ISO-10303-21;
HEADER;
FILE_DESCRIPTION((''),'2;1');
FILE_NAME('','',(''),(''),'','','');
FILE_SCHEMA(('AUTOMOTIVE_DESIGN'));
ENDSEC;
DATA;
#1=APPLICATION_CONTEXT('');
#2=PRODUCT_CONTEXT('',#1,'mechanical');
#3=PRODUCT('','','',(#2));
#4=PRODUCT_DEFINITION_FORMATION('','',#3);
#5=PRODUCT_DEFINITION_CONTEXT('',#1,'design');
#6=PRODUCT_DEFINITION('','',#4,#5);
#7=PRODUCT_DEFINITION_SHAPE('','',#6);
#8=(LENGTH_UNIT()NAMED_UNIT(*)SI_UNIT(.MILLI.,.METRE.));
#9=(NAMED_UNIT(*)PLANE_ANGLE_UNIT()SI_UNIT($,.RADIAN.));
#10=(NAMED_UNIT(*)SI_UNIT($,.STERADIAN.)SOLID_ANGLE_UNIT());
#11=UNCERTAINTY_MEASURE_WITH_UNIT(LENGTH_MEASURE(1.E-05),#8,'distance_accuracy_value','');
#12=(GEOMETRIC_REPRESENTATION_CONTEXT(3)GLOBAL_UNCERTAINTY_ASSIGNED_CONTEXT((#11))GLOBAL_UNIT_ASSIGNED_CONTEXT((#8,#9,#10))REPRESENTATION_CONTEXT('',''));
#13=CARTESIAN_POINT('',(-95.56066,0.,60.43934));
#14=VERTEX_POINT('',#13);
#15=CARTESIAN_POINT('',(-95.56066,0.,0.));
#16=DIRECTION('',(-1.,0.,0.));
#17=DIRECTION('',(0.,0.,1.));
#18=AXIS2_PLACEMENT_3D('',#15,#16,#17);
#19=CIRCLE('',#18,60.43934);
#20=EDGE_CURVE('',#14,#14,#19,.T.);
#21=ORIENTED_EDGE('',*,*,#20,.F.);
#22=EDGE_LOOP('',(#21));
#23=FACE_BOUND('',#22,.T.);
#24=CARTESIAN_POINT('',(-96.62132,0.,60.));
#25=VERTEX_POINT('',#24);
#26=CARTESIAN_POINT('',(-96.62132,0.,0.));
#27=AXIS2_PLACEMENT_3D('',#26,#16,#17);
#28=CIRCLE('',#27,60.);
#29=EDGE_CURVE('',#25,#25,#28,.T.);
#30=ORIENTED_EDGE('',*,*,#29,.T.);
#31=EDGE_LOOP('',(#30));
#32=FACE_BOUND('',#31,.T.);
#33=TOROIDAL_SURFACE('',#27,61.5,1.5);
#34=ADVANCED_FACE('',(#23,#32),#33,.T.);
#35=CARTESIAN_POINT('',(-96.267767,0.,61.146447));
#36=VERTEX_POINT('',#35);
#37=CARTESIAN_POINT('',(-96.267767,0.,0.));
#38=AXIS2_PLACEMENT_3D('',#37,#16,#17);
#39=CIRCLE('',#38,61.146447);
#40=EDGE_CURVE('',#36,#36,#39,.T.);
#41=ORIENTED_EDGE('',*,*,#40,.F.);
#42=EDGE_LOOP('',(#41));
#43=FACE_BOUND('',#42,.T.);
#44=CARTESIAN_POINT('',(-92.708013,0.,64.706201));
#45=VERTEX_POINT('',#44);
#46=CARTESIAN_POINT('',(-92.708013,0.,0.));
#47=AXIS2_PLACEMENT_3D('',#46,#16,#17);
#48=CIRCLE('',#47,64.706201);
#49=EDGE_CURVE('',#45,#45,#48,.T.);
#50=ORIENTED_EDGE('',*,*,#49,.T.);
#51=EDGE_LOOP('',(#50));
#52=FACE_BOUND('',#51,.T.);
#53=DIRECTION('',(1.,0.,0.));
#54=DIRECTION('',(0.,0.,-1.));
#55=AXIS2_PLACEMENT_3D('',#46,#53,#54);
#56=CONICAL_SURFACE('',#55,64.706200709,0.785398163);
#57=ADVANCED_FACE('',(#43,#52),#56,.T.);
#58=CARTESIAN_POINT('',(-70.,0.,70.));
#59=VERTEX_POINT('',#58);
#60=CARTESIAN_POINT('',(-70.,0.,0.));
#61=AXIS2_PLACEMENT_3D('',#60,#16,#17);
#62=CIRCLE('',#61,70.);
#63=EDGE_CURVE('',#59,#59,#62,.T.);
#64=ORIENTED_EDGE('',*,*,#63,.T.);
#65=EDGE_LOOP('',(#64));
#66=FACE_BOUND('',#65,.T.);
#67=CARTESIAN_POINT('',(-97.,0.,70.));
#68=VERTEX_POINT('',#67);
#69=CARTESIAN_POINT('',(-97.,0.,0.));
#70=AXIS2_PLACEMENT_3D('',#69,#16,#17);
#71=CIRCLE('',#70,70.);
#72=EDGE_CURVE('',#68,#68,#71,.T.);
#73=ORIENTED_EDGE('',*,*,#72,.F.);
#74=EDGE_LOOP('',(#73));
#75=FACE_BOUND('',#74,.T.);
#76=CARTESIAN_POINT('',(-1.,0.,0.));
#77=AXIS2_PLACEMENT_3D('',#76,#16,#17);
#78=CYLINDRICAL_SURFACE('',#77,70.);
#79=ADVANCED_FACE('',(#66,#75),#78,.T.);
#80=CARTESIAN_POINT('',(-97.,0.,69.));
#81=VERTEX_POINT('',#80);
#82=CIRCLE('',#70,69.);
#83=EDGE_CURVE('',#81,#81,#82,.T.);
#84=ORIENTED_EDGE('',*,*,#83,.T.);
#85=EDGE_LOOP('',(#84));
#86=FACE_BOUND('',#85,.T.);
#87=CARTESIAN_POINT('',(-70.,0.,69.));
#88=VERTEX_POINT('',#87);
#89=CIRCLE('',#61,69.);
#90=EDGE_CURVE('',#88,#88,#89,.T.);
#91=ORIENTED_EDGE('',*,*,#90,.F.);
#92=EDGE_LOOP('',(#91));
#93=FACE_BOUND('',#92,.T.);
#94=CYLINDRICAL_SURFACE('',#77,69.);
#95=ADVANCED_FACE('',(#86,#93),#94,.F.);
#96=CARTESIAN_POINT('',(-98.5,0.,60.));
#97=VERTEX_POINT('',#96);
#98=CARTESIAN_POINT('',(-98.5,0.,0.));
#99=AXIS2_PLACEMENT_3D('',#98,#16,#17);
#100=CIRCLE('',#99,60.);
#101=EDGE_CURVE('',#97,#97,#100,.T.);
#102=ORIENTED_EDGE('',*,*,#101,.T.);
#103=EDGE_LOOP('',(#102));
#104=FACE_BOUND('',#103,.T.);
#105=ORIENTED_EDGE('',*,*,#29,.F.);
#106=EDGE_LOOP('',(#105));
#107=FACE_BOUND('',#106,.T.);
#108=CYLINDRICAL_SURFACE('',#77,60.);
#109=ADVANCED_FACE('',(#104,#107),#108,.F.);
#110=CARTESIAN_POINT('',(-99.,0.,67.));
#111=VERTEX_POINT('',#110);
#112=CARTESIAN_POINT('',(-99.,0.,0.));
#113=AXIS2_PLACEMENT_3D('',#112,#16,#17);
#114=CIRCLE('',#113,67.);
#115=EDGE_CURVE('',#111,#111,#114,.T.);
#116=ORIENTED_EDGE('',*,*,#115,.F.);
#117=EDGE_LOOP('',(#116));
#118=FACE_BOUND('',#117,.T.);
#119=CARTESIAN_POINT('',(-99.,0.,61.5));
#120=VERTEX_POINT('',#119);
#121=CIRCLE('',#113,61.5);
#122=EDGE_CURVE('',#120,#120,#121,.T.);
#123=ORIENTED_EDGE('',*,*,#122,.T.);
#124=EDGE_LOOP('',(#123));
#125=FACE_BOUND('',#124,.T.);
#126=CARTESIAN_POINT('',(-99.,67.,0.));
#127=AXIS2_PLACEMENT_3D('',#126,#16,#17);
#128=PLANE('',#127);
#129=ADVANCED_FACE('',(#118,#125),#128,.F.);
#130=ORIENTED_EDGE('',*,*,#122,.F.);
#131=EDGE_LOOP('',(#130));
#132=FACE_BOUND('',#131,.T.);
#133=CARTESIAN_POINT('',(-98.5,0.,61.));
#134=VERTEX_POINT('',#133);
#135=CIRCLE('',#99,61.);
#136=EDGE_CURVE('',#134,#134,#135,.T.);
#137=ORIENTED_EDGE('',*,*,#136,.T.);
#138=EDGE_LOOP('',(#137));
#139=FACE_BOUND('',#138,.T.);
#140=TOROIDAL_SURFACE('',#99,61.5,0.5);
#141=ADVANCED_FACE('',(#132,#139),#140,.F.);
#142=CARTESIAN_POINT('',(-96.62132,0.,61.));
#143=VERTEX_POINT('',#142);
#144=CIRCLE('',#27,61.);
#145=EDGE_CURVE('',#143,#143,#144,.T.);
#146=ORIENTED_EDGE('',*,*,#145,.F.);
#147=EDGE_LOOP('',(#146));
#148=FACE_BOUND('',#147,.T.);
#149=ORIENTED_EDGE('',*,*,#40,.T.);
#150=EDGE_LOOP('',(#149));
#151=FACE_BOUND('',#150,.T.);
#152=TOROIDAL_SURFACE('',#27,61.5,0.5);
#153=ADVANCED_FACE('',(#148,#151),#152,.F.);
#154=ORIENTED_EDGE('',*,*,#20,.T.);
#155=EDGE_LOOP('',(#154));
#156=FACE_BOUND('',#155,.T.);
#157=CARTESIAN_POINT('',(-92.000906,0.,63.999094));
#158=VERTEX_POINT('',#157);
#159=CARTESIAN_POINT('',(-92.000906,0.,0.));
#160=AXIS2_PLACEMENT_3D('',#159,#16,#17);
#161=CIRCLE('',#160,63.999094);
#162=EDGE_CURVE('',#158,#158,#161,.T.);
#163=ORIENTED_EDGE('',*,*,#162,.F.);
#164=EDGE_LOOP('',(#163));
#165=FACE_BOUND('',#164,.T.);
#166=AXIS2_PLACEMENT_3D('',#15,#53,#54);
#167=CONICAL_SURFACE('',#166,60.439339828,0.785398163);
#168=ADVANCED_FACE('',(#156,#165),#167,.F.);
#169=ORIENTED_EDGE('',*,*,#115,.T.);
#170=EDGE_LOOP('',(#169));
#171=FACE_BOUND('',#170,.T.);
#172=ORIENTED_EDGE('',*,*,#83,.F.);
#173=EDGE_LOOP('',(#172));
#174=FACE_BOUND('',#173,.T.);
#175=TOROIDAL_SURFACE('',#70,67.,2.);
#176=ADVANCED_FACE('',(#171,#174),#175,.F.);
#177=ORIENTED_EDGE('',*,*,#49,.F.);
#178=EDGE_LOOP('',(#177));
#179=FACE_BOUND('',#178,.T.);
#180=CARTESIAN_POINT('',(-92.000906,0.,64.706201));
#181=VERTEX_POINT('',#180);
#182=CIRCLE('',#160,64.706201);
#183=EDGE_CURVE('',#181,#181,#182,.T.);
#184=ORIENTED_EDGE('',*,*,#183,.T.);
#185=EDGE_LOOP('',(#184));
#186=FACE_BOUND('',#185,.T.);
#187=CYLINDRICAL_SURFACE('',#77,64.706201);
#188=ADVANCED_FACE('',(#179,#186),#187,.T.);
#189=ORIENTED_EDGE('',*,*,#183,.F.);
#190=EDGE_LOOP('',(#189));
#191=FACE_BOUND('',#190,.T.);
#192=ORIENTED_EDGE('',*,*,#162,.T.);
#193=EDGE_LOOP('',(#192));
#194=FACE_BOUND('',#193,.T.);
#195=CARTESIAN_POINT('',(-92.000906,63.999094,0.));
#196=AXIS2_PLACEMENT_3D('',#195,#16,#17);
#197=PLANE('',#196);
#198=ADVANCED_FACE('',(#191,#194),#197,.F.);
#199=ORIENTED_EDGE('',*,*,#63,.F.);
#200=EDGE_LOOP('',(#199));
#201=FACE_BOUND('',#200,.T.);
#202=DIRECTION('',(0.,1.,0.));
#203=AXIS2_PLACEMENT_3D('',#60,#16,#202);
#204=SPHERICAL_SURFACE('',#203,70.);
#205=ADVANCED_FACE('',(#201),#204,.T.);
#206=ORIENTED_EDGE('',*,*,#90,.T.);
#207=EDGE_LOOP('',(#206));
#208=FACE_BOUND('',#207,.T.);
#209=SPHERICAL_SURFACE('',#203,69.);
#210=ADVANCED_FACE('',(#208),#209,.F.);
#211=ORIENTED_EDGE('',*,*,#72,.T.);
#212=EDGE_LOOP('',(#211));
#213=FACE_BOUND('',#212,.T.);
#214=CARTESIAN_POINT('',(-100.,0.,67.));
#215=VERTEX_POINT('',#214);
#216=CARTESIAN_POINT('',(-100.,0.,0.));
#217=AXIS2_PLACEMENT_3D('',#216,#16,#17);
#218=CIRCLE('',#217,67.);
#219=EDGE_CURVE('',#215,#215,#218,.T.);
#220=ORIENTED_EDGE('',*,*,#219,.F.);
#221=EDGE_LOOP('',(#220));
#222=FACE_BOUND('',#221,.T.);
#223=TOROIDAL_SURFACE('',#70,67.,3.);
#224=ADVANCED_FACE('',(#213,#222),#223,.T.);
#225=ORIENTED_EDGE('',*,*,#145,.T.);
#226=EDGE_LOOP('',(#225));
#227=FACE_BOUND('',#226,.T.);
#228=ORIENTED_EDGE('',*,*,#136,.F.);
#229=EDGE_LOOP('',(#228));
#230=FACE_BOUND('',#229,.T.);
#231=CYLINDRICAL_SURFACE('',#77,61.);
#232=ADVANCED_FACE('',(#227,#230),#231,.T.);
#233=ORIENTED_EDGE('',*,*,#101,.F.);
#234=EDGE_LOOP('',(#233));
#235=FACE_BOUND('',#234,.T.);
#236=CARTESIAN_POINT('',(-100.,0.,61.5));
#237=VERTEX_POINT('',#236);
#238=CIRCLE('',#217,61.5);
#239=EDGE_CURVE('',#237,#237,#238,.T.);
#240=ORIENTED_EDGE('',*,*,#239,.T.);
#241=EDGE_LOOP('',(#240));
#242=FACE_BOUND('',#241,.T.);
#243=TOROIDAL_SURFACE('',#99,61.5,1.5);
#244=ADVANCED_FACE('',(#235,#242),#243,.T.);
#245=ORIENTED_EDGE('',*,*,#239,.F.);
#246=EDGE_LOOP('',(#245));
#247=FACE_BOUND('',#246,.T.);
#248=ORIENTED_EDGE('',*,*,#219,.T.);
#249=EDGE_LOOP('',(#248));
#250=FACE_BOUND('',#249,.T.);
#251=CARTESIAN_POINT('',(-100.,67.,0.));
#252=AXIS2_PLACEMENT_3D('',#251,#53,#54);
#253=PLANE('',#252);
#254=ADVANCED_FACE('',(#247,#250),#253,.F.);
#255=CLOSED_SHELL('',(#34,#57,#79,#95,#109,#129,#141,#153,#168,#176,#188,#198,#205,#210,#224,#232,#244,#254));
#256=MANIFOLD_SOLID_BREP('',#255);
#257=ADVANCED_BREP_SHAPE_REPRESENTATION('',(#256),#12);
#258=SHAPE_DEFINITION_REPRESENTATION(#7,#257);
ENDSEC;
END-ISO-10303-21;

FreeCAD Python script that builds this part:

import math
import FreeCAD as App
import Part
import Sketcher

V = App.Vector
Q = App.Units.Quantity

doc = App.newDocument("Part")
body = doc.addObject("PartDesign::Body", "Body")

# Sketch on XY plane
sketch1 = body.newObject("Sketcher::SketchObject", "Sketch")
sketch1.AttachmentSupport = (doc.getObject("XY_Plane"), [""])
sketch1.MapMode = "FlatFace"
sketch1.addGeometry([
    Part.LineSegment(V(-70, 70, 0), V(-97, 70, 0)),  # 0
    Part.ArcOfCircle(Part.Circle(V(-97, 67, 0), V(0, 0, 1), 3), math.radians(90), math.radians(180)),  # 1
    Part.LineSegment(V(-100, 67, 0), V(-100, 61.5, 0)),  # 2
    Part.ArcOfCircle(Part.Circle(V(-98.5, 61.5, 0), V(0, 0, 1), 1.5), math.radians(180), math.radians(270)),  # 3
    Part.LineSegment(V(-98.5, 60, 0), V(-96.62, 60, 0)),  # 4
    Part.ArcOfCircle(Part.Circle(V(-96.62, 61.5, 0), V(0, 0, 1), 1.5), math.radians(-90), math.radians(-45)),  # 5
    Part.LineSegment(V(-95.56, 60.44, 0), V(-92, 64, 0)),  # 6
    Part.LineSegment(V(-92, 64, 0), V(-92, 64.71, 0)),  # 7
    Part.LineSegment(V(-92, 64.71, 0), V(-92.71, 64.71, 0)),  # 8
    Part.LineSegment(V(-92.71, 64.71, 0), V(-96.27, 61.15, 0)),  # 9
    Part.ArcOfCircle(Part.Circle(V(-96.62, 61.5, 0), V(0, 0, 1), 0.5), math.radians(-90), math.radians(-45)),  # 10
    Part.LineSegment(V(-96.62, 61, 0), V(-98.5, 61, 0)),  # 11
    Part.ArcOfCircle(Part.Circle(V(-98.5, 61.5, 0), V(0, 0, 1), 0.5), math.radians(180), math.radians(270)),  # 12
    Part.LineSegment(V(-99, 61.5, 0), V(-99, 67, 0)),  # 13
    Part.ArcOfCircle(Part.Circle(V(-97, 67, 0), V(0, 0, 1), 2), math.radians(90), math.radians(180)),  # 14
    Part.LineSegment(V(-97, 69, 0), V(-70, 69, 0)),  # 15
    Part.ArcOfCircle(Part.Circle(V(-70, 0, 0), V(0, 0, 1), 69), math.radians(0), math.radians(90)),  # 16
    Part.LineSegment(V(-1, 0, 0), V(0, 0, 0)),  # 17
    Part.ArcOfCircle(Part.Circle(V(-70, 0, 0), V(0, 0, 1), 70), math.radians(0), math.radians(90)),  # 18
], False)
sketch1.addConstraint([
    Sketcher.Constraint("Tangent", 0, 2, 1, 1),
    Sketcher.Constraint("Tangent", 1, 2, 2, 1),
    Sketcher.Constraint("Tangent", 2, 2, 3, 1),
    Sketcher.Constraint("Tangent", 3, 2, 4, 1),
    Sketcher.Constraint("Tangent", 4, 2, 5, 1),
    Sketcher.Constraint("Tangent", 5, 2, 6, 1),
    Sketcher.Constraint("Coincident", 6, 2, 7, 1),
    Sketcher.Constraint("Coincident", 7, 2, 8, 1),
    Sketcher.Constraint("Coincident", 8, 2, 9, 1),
    Sketcher.Constraint("Tangent", 9, 2, 10, 2),
    Sketcher.Constraint("Tangent", 10, 1, 11, 1),
    Sketcher.Constraint("Tangent", 11, 2, 12, 2),
    Sketcher.Constraint("Tangent", 12, 1, 13, 1),
    Sketcher.Constraint("Tangent", 13, 2, 14, 2),
    Sketcher.Constraint("Tangent", 14, 1, 15, 1),
    Sketcher.Constraint("Tangent", 15, 2, 16, 2),
    Sketcher.Constraint("Coincident", 16, 1, 17, 1),
    Sketcher.Constraint("Coincident", 17, 2, 18, 1),
    Sketcher.Constraint("Tangent", 18, 2, 0, 1),
    Sketcher.Constraint("Horizontal", 0),
    Sketcher.Constraint("Vertical", 2),
    Sketcher.Constraint("Horizontal", 4),
    Sketcher.Constraint("Vertical", 7),
    Sketcher.Constraint("Horizontal", 8),
    Sketcher.Constraint("Horizontal", 11),
    Sketcher.Constraint("Vertical", 13),
    Sketcher.Constraint("Horizontal", 15),
    Sketcher.Constraint("Horizontal", 17),
    Sketcher.Constraint("Coincident", 17, 2, -1, 1),
    Sketcher.Constraint("Coincident", 10, 3, 5, 3),
    Sketcher.Constraint("Coincident", 12, 3, 3, 3),
    Sketcher.Constraint("Coincident", 14, 3, 1, 3),
    Sketcher.Constraint("Coincident", 18, 3, 16, 3),
    Sketcher.Constraint("Equal", 3, 5),
    Sketcher.Constraint("PointOnObject", 16, 3, -1),
    Sketcher.Constraint("Parallel", 6, 9),
    Sketcher.Constraint("Equal", 8, 7),
    Sketcher.Constraint("Equal", 6, 9),
    Sketcher.Constraint("Radius", 1, Q("3 mm")),
    Sketcher.Constraint("Radius", 14, Q("2 mm")),
    Sketcher.Constraint("Radius", 16, Q("69 mm")),
    Sketcher.Constraint("Radius", 3, Q("1.5 mm")),
    Sketcher.Constraint("DistanceX", 0, 2, 0, 1, Q("27 mm")),
    Sketcher.Constraint("DistanceY", 2, 2, 2, 1, Q("5.5 mm")),
    Sketcher.Constraint("DistanceX", 4, 1, 4, 2, Q("1.87868 mm")),
    Sketcher.Constraint("DistanceY", -1, 1, 7, 2, Q("64.706201 mm")),
])
revolution = body.newObject("PartDesign::Revolution", "Revolution")
revolution.Profile = sketch1
revolution.ReferenceAxis = (sketch1, ["H_Axis"])
revolution.Angle = 360

doc.recompute()
